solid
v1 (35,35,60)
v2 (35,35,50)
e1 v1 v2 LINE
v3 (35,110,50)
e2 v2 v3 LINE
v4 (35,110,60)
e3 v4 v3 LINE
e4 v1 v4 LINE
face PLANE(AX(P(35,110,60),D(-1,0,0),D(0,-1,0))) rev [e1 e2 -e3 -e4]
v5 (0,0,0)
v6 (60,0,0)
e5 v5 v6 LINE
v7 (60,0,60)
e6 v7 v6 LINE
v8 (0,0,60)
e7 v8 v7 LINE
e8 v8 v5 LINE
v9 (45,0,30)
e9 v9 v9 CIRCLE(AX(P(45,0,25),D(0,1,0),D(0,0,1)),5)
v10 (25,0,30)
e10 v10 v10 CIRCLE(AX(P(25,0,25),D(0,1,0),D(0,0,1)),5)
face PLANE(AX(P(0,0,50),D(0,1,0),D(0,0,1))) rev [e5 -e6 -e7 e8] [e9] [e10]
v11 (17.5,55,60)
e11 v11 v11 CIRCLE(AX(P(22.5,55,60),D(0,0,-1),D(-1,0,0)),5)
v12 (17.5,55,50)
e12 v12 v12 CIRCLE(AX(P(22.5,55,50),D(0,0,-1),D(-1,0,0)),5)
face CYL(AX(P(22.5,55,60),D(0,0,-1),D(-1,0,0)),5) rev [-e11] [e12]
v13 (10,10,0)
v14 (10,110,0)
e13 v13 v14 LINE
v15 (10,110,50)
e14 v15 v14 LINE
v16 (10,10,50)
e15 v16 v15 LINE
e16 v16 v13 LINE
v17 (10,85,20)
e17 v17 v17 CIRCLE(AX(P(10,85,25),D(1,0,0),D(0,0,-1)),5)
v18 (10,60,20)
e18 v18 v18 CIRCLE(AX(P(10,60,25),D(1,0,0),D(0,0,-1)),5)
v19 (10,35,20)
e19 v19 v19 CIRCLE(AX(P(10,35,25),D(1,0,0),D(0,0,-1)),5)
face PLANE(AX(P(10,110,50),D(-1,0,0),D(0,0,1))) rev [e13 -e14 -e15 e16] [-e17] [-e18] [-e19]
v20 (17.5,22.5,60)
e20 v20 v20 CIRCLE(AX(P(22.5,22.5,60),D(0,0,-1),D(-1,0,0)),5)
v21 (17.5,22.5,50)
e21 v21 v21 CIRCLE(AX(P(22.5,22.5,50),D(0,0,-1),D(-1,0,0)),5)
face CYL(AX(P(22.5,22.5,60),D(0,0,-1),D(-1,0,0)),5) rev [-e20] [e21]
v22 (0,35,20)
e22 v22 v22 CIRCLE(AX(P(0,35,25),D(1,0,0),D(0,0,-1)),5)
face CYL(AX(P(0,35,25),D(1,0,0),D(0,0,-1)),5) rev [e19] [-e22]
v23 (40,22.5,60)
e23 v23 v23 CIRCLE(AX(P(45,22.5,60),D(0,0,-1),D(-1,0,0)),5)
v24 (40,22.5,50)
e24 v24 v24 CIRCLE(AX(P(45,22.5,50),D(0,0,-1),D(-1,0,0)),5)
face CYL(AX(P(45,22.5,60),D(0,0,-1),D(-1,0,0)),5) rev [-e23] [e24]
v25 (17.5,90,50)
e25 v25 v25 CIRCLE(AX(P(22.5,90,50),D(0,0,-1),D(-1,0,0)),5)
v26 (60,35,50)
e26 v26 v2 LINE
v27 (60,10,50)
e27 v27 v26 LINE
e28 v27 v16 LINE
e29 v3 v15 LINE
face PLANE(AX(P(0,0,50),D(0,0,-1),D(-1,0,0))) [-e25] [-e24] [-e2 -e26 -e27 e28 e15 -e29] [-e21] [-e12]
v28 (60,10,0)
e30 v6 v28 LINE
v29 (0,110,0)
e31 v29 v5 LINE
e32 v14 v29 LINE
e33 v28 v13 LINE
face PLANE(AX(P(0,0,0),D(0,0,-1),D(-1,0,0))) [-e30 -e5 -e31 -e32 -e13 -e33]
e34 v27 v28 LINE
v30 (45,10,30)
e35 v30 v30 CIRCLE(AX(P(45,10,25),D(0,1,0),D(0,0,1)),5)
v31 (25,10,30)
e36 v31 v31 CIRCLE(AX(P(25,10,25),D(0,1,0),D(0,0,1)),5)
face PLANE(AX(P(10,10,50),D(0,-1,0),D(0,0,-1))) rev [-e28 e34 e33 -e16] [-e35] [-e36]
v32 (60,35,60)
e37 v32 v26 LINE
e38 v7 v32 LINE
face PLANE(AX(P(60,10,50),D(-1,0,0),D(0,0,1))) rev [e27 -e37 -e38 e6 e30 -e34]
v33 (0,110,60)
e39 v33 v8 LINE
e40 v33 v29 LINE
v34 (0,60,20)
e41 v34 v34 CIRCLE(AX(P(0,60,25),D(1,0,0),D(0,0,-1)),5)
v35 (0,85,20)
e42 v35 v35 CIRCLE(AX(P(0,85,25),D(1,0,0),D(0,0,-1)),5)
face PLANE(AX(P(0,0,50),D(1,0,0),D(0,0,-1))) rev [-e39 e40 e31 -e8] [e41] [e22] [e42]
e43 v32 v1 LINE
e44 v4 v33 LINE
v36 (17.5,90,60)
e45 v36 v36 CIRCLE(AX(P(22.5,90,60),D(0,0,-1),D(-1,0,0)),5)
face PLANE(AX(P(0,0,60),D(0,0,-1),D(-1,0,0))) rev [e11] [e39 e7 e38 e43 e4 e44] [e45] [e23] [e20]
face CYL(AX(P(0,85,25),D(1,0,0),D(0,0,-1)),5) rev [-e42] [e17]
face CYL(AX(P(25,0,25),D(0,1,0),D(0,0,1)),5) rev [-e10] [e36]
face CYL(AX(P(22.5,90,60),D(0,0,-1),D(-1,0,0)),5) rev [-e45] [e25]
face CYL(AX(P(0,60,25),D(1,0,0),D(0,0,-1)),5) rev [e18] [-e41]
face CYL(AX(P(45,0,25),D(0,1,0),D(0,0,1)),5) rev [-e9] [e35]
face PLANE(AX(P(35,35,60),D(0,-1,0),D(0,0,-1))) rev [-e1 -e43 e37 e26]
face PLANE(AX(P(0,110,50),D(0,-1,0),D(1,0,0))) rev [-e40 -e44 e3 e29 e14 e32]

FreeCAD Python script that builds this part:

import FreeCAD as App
import Part
import Sketcher

V = App.Vector
Q = App.Units.Quantity

doc = App.newDocument("Part")
body = doc.addObject("PartDesign::Body", "Body")

# Sketch on XY plane
sketch1 = doc.addObject("Sketcher::SketchObject", "Sketch")
body.addObject(sketch1)
sketch1.AttachmentSupport = (doc.XY_Plane, [""])
sketch1.MapMode = "FlatFace"
sketch1.addGeometry(Part.LineSegment(V(10, 110, 0), V(0, 110, 0)), False)
sketch1.addGeometry(Part.LineSegment(V(0, 110, 0), V(0, 0, 0)), False)
sketch1.addGeometry(Part.LineSegment(V(0, 0, 0), V(60, 0, 0)), False)
sketch1.addGeometry(Part.LineSegment(V(60, 0, 0), V(60, 10, 0)), False)
sketch1.addGeometry(Part.LineSegment(V(60, 10, 0), V(10, 10, 0)), False)
sketch1.addGeometry(Part.LineSegment(V(10, 10, 0), V(10, 110, 0)), False)
sketch1.addConstraint(Sketcher.Constraint("Coincident", 0, 2, 1, 1))
sketch1.addConstraint(Sketcher.Constraint("Coincident", 1, 2, 2, 1))
sketch1.addConstraint(Sketcher.Constraint("Coincident", 2, 2, 3, 1))
sketch1.addConstraint(Sketcher.Constraint("Coincident", 3, 2, 4, 1))
sketch1.addConstraint(Sketcher.Constraint("Coincident", 4, 2, 5, 1))
sketch1.addConstraint(Sketcher.Constraint("Coincident", 5, 2, 0, 1))
sketch1.addConstraint(Sketcher.Constraint("Horizontal", 0))
sketch1.addConstraint(Sketcher.Constraint("Vertical", 1))
sketch1.addConstraint(Sketcher.Constraint("Horizontal", 2))
sketch1.addConstraint(Sketcher.Constraint("Vertical", 3))
sketch1.addConstraint(Sketcher.Constraint("Horizontal", 4))
sketch1.addConstraint(Sketcher.Constraint("Vertical", 5))
sketch1.addConstraint(Sketcher.Constraint("Coincident", 1, 2, -1, 1))
sketch1.addConstraint(Sketcher.Constraint("Equal", 0, 3))
sketch1.addConstraint(Sketcher.Constraint("DistanceX", 0, 2, 0, 1, Q("10 mm")))
sketch1.addConstraint(Sketcher.Constraint("DistanceX", 2, 1, 2, 2, Q("60 mm")))
sketch1.addConstraint(Sketcher.Constraint("DistanceY", 1, 2, 1, 1, Q("110 mm")))
pad1 = doc.addObject("PartDesign::Pad", "Pad")
body.addObject(pad1)
pad1.Profile = sketch1
pad1.Length = 50

# Sketch on XY plane
sketch2 = doc.addObject("Sketcher::SketchObject", "Sketch001")
body.addObject(sketch2)
sketch2.AttachmentSupport = (doc.XY_Plane, [""])
sketch2.MapMode = "FlatFace"
sketch2.AttachmentOffset = App.Placement(V(0, 0, 50), App.Rotation())
sketch2.addGeometry(Part.LineSegment(V(35, 110, 0), V(0, 110, 0)), False)
sketch2.addGeometry(Part.LineSegment(V(0, 110, 0), V(0, 0, 0)), False)
sketch2.addGeometry(Part.LineSegment(V(0, 0, 0), V(60, 0, 0)), False)
sketch2.addGeometry(Part.LineSegment(V(60, 0, 0), V(60, 35, 0)), False)
sketch2.addGeometry(Part.LineSegment(V(60, 35, 0), V(35, 35, 0)), False)
sketch2.addGeometry(Part.LineSegment(V(35, 35, 0), V(35, 110, 0)), False)
sketch2.addConstraint(Sketcher.Constraint("Coincident", 0, 2, 1, 1))
sketch2.addConstraint(Sketcher.Constraint("Coincident", 1, 2, 2, 1))
sketch2.addConstraint(Sketcher.Constraint("Coincident", 2, 2, 3, 1))
sketch2.addConstraint(Sketcher.Constraint("Coincident", 3, 2, 4, 1))
sketch2.addConstraint(Sketcher.Constraint("Coincident", 4, 2, 5, 1))
sketch2.addConstraint(Sketcher.Constraint("Coincident", 5, 2, 0, 1))
sketch2.addConstraint(Sketcher.Constraint("Horizontal", 0))
sketch2.addConstraint(Sketcher.Constraint("Vertical", 1))
sketch2.addConstraint(Sketcher.Constraint("Horizontal", 2))
sketch2.addConstraint(Sketcher.Constraint("Vertical", 3))
sketch2.addConstraint(Sketcher.Constraint("Horizontal", 4))
sketch2.addConstraint(Sketcher.Constraint("Vertical", 5))
sketch2.addConstraint(Sketcher.Constraint("Coincident", 1, 2, -1, 1))
sketch2.addConstraint(Sketcher.Constraint("Equal", 0, 3))
sketch2.addConstraint(Sketcher.Constraint("DistanceX", 0, 2, 0, 1, Q("35 mm")))
sketch2.addConstraint(Sketcher.Constraint("DistanceX", 2, 1, 2, 2, Q("60 mm")))
sketch2.addConstraint(Sketcher.Constraint("DistanceY", 1, 2, 1, 1, Q("110 mm")))
pad2 = doc.addObject("PartDesign::Pad", "Pad001")
body.addObject(pad2)
pad2.Profile = sketch2
pad2.Length = 10

# Sketch on YZ plane
sketch3 = doc.addObject("Sketcher::SketchObject", "Sketch002")
body.addObject(sketch3)
sketch3.AttachmentSupport = (doc.YZ_Plane, [""])
sketch3.MapMode = "FlatFace"
sketch3.AttachmentOffset = App.Placement(V(0, 0, 10), App.Rotation())
sketch3.addGeometry(Part.Circle(V(60, 25, 0), V(0, 0, 1), 5), False)
sketch3.addGeometry(Part.Circle(V(85, 25, 0), V(0, 0, 1), 5), False)
sketch3.addGeometry(Part.Circle(V(35, 25, 0), V(0, 0, 1), 5), False)
sketch3.addConstraint(Sketcher.Constraint("Equal", 0, 1))
sketch3.addConstraint(Sketcher.Constraint("Equal", 1, 2))
sketch3.addConstraint(Sketcher.Constraint("Horizontal", 0, 3, 1, 3))
sketch3.addConstraint(Sketcher.Constraint("Horizontal", 1, 3, 2, 3))
sketch3.addConstraint(Sketcher.Constraint("Diameter", 0, Q("10 mm")))
sketch3.addConstraint(Sketcher.Constraint("DistanceX", -1, 1, 0, 3, Q("60 mm")))
sketch3.addConstraint(Sketcher.Constraint("DistanceY", -1, 1, 0, 3, Q("25 mm")))
sketch3.addConstraint(Sketcher.Constraint("DistanceX", -1, 1, 1, 3, Q("85 mm")))
sketch3.addConstraint(Sketcher.Constraint("DistanceX", -1, 1, 2, 3, Q("35 mm")))
pocket1 = doc.addObject("PartDesign::Pocket", "Pocket")
body.addObject(pocket1)
pocket1.Profile = sketch3
pocket1.Length = 10

# Sketch on XZ plane
sketch4 = doc.addObject("Sketcher::SketchObject", "Sketch003")
body.addObject(sketch4)
sketch4.AttachmentSupport = (doc.XZ_Plane, [""])
sketch4.MapMode = "FlatFace"
sketch4.AttachmentOffset = App.Placement(V(0, 0, -10), App.Rotation())
sketch4.addGeometry(Part.Circle(V(45, 25, 0), V(0, 0, 1), 5), False)
sketch4.addGeometry(Part.Circle(V(25, 25, 0), V(0, 0, 1), 5), False)
sketch4.addConstraint(Sketcher.Constraint("Equal", 0, 1))
sketch4.addConstraint(Sketcher.Constraint("Horizontal", 0, 3, 1, 3))
sketch4.addConstraint(Sketcher.Constraint("Diameter", 0, Q("10 mm")))
sketch4.addConstraint(Sketcher.Constraint("DistanceX", -1, 1, 0, 3, Q("45 mm")))
sketch4.addConstraint(Sketcher.Constraint("DistanceY", -1, 1, 0, 3, Q("25 mm")))
sketch4.addConstraint(Sketcher.Constraint("DistanceX", -1, 1, 1, 3, Q("25 mm")))
pocket2 = doc.addObject("PartDesign::Pocket", "Pocket001")
body.addObject(pocket2)
pocket2.Profile = sketch4
pocket2.Length = 10
pocket2.Reversed = True

# Sketch on XY plane
sketch5 = doc.addObject("Sketcher::SketchObject", "Sketch004")
body.addObject(sketch5)
sketch5.AttachmentSupport = (doc.XY_Plane, [""])
sketch5.MapMode = "FlatFace"
sketch5.AttachmentOffset = App.Placement(V(0, 0, 50), App.Rotation())
sketch5.addGeometry(Part.Circle(V(22, 22, 0), V(0, 0, 1), 5), False)
sketch5.addGeometry(Part.Circle(V(22, 55, 0), V(0, 0, 1), 5), False)
sketch5.addGeometry(Part.Circle(V(22, 90, 0), V(0, 0, 1), 5), False)
sketch5.addGeometry(Part.Circle(V(45, 22, 0), V(0, 0, 1), 5), False)
sketch5.addConstraint(Sketcher.Constraint("Equal", 0, 1))
sketch5.addConstraint(Sketcher.Constraint("Equal", 1, 2))
sketch5.addConstraint(Sketcher.Constraint("Equal", 2, 3))
sketch5.addConstraint(Sketcher.Constraint("Horizontal", 0, 3, 3, 3))
sketch5.addConstraint(Sketcher.Constraint("Vertical", 0, 3, 1, 3))
sketch5.addConstraint(Sketcher.Constraint("Vertical", 1, 3, 2, 3))
sketch5.addConstraint(Sketcher.Constraint("Diameter", 0, Q("10 mm")))
sketch5.addConstraint(Sketcher.Constraint("DistanceY", -1, 1, 1, 3, Q("55 mm")))
sketch5.addConstraint(Sketcher.Constraint("DistanceY", -1, 1, 2, 3, Q("90 mm")))
sketch5.addConstraint(Sketcher.Constraint("DistanceX", -1, 1, 3, 3, Q("45 mm")))
sketch5.addConstraint(Sketcher.Constraint("DistanceX", -1, 1, 0, 3, Q("22.5 mm")))
sketch5.addConstraint(Sketcher.Constraint("DistanceY", -1, 1, 0, 3, Q("22.5 mm")))
pocket3 = doc.addObject("PartDesign::Pocket", "Pocket002")
body.addObject(pocket3)
pocket3.Profile = sketch5
pocket3.Length = 10
pocket3.Reversed = True

doc.recompute()
